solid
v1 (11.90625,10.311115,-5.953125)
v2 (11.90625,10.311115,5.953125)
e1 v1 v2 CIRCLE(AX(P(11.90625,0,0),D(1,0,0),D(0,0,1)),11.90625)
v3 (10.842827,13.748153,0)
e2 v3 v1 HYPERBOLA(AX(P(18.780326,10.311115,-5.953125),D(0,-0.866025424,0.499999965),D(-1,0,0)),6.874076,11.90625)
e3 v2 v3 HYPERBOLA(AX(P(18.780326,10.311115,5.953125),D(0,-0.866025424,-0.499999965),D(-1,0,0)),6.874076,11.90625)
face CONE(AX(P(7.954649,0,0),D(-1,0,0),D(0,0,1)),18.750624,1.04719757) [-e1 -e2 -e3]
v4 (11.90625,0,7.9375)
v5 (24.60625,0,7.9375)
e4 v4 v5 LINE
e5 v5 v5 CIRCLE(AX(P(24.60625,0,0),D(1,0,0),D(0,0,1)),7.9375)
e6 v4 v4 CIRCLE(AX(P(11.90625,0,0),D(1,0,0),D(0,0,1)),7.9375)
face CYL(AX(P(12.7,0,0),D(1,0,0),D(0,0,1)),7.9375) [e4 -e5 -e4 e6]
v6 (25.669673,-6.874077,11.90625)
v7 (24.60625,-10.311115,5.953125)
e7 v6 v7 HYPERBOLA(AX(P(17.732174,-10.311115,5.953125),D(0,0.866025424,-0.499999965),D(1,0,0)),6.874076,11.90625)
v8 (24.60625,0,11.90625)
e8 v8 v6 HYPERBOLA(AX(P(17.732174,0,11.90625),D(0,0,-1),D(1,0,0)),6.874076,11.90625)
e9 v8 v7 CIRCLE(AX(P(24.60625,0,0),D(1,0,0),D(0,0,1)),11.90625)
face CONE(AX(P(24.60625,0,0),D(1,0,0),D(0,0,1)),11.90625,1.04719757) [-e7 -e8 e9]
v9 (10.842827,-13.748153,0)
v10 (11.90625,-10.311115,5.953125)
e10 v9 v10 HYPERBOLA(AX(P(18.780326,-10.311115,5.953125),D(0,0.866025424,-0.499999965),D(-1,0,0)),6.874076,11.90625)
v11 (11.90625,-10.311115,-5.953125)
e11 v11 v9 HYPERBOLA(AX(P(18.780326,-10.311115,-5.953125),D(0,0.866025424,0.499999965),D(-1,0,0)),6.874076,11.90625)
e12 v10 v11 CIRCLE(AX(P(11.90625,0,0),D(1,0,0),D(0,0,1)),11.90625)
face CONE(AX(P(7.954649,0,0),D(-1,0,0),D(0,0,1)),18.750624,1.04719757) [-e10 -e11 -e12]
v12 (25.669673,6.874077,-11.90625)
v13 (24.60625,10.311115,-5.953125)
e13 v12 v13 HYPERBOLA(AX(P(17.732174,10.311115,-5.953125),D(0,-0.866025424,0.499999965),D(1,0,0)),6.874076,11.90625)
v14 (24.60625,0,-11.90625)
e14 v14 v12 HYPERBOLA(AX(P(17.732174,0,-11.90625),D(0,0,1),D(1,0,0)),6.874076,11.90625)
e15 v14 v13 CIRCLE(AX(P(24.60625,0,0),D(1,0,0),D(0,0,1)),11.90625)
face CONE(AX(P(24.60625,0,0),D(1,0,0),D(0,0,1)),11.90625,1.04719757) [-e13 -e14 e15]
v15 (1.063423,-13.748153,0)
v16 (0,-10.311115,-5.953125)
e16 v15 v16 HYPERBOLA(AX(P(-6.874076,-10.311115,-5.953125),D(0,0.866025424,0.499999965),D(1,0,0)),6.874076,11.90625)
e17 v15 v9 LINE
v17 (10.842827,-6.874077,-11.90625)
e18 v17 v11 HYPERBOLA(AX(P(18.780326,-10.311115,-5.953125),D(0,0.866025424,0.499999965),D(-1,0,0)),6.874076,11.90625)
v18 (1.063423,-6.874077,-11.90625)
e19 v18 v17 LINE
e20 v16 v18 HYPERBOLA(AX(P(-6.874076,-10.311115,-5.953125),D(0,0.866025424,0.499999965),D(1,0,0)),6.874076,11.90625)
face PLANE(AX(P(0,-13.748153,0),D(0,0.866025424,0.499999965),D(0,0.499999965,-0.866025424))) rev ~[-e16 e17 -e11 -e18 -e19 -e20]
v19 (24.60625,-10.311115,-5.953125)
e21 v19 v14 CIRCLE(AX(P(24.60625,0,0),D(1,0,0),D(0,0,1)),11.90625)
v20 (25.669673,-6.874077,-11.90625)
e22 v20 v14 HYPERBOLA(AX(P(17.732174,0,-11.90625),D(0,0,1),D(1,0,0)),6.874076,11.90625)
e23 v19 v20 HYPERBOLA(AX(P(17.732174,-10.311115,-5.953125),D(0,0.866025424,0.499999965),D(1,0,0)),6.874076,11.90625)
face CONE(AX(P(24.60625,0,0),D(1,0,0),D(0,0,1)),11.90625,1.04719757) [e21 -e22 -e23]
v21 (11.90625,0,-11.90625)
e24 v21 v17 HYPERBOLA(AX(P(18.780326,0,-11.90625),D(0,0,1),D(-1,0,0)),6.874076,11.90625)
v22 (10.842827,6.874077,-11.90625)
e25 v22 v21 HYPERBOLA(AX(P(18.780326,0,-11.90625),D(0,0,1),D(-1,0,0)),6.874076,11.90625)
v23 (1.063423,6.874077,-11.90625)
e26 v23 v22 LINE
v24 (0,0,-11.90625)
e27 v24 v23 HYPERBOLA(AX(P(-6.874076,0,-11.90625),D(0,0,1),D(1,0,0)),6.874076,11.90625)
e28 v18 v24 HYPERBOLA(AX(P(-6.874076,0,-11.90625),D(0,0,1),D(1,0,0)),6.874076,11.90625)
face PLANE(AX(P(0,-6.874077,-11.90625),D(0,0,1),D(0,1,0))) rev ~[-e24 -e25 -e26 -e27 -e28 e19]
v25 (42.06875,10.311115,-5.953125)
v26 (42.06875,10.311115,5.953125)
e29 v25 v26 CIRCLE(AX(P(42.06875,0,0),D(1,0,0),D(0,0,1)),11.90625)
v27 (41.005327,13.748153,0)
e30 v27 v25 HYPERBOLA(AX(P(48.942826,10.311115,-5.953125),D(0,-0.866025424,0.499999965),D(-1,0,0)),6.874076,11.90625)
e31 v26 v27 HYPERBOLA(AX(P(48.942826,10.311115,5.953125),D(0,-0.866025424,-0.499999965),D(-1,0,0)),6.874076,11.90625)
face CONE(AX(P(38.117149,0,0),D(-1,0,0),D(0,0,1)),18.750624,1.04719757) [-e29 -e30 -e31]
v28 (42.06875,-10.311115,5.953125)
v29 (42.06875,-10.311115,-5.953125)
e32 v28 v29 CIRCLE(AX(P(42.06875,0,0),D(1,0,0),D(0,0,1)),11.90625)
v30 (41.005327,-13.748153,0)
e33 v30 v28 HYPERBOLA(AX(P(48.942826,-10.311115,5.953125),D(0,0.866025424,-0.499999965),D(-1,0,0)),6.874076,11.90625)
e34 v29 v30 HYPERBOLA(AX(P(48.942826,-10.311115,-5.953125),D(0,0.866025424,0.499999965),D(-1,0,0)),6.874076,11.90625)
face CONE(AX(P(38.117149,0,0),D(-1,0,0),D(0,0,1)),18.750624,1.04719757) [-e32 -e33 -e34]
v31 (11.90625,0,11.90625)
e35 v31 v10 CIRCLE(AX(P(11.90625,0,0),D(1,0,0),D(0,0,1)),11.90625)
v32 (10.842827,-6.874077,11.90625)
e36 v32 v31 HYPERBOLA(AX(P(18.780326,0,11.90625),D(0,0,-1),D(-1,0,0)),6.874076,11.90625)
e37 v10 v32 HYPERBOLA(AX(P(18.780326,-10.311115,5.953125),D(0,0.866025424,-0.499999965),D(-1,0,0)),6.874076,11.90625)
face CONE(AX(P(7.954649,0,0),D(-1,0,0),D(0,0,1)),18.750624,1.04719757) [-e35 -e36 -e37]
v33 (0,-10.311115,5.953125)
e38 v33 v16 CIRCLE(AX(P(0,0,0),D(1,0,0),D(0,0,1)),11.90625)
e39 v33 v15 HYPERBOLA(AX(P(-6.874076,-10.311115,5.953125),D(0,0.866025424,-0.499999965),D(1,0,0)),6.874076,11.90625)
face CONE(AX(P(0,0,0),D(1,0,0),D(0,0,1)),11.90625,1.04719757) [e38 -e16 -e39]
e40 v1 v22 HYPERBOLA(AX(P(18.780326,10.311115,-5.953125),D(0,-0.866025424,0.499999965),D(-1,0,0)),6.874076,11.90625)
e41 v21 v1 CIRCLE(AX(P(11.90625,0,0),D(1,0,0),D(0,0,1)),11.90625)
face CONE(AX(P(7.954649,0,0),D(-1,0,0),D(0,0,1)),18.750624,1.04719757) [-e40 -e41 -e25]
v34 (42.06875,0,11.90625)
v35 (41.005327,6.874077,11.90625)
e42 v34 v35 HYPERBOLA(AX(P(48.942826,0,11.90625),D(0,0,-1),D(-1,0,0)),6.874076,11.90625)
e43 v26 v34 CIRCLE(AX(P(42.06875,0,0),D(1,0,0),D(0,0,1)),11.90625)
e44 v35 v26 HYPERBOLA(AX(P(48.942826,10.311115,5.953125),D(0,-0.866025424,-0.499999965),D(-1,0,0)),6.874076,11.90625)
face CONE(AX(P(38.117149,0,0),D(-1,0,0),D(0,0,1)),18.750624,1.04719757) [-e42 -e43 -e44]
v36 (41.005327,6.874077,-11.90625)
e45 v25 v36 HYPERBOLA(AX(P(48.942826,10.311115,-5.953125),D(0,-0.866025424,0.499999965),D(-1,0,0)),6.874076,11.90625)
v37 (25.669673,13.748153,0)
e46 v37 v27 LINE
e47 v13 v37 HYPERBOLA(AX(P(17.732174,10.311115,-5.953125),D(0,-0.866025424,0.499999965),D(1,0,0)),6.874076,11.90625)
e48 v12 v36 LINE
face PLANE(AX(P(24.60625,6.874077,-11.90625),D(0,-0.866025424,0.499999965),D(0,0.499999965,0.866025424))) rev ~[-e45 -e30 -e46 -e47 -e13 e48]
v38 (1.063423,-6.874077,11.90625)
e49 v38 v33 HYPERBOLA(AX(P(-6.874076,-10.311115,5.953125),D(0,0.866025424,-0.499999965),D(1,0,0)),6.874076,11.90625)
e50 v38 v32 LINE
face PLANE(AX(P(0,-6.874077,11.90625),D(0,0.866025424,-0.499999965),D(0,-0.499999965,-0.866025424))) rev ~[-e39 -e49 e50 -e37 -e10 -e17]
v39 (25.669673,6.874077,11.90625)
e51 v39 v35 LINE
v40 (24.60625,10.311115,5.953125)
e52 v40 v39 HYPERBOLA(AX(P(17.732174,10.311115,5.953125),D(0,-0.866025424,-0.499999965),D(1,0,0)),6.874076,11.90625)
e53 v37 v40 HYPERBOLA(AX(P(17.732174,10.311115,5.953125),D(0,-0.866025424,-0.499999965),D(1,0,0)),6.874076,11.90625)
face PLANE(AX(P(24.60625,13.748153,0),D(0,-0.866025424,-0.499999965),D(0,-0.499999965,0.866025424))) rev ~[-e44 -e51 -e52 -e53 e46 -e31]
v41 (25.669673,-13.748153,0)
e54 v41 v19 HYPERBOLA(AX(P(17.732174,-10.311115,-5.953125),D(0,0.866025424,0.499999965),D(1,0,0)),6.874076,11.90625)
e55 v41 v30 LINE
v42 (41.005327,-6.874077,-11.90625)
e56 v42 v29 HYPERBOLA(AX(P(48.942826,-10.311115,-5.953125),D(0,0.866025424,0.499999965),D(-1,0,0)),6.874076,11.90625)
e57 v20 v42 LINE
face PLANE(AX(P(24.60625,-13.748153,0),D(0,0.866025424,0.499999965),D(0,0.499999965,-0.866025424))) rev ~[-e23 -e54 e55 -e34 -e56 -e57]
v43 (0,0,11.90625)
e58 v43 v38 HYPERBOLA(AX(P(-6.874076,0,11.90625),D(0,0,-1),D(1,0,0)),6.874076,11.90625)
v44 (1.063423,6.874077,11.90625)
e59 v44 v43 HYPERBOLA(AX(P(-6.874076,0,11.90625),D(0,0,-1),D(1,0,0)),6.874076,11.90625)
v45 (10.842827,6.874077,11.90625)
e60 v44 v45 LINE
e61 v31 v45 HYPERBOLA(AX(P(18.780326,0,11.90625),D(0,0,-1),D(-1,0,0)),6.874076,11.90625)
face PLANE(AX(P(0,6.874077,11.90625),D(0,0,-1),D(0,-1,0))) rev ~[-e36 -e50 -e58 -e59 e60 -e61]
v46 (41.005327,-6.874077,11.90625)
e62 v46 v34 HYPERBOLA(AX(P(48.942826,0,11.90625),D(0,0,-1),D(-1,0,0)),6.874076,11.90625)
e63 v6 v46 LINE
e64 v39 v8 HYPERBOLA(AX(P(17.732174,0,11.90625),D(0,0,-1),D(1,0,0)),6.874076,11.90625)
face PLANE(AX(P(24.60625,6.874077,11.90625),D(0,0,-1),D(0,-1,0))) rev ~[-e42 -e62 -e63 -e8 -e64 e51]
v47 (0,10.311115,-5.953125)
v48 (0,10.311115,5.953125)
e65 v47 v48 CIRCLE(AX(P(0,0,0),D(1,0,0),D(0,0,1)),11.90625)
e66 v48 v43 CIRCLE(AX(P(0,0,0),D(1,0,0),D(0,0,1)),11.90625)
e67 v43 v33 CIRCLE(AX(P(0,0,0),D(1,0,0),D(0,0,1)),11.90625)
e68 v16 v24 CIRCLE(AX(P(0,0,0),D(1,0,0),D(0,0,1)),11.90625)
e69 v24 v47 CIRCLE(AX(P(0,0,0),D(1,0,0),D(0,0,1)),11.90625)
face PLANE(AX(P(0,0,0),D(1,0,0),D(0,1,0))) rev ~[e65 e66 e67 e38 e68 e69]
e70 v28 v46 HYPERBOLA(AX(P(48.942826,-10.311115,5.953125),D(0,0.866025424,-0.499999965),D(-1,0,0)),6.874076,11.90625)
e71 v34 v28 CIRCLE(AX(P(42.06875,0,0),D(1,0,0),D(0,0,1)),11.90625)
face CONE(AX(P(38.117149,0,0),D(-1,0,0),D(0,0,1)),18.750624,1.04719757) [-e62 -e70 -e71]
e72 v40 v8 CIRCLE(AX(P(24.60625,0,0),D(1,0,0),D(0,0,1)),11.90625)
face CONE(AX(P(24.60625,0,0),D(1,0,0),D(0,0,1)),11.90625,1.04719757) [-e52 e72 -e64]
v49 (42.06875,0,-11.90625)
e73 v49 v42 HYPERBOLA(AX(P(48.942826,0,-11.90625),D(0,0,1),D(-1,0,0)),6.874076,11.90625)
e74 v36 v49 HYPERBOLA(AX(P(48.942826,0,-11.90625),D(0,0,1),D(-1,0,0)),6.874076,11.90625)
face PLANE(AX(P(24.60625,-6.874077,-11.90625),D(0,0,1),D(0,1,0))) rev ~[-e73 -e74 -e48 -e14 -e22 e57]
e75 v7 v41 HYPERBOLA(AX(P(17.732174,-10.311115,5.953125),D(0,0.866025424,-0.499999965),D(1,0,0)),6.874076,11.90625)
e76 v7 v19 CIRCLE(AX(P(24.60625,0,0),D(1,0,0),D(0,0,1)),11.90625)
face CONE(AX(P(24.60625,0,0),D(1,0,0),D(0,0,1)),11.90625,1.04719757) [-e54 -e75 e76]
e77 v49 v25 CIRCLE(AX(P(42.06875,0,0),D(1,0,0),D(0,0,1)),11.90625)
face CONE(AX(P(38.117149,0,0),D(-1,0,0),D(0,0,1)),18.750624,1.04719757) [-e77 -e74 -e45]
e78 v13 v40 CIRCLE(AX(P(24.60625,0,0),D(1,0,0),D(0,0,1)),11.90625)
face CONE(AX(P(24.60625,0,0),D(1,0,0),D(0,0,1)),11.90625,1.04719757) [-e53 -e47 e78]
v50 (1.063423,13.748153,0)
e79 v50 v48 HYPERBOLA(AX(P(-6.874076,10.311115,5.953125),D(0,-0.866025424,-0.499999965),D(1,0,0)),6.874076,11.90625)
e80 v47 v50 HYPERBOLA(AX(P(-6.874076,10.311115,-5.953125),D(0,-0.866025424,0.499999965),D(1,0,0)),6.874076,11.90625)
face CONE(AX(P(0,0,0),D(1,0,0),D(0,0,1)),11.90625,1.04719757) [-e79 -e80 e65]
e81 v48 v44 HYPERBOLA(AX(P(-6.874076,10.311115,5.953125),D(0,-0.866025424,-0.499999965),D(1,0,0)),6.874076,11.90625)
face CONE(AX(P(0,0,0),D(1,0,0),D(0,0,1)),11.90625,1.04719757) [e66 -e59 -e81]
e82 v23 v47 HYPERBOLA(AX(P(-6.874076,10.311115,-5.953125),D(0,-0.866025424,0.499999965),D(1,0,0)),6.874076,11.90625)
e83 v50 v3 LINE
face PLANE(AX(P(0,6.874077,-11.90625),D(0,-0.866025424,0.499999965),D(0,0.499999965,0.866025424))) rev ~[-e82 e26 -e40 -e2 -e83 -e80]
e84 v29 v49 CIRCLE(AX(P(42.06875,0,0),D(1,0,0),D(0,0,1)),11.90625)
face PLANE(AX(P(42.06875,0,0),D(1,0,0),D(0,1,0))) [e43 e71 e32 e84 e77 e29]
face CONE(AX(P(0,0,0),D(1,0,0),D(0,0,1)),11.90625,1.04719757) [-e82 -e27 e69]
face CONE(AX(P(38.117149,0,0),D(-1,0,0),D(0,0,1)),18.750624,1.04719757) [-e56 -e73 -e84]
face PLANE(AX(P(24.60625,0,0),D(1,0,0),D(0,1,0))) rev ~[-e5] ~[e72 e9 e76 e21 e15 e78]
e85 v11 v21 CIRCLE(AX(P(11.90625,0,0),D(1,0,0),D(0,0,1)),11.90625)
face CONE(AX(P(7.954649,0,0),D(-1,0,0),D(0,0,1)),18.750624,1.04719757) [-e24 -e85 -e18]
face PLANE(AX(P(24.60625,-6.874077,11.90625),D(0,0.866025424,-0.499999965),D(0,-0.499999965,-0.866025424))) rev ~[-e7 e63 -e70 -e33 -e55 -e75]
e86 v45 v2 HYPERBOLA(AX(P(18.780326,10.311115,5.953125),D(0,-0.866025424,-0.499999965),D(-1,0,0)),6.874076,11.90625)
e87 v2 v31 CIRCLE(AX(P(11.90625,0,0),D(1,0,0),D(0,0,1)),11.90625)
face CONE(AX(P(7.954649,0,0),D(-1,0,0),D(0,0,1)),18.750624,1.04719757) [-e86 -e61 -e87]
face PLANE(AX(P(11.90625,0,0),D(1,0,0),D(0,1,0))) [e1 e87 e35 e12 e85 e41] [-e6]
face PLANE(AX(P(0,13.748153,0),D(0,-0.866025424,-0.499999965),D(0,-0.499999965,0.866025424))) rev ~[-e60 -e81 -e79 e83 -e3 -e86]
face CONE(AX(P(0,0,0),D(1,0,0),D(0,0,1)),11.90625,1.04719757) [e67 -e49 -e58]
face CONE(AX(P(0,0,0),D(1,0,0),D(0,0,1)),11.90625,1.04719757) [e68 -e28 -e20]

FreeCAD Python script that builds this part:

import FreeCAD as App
import Part
import Sketcher
from FreeCAD import Vector
Q = App.Units.Quantity


def add_polygon(sketch, points):
    """Adds a closed chain of lines whose ends are joined by coincident constraints."""
    first, n = sketch.GeometryCount, len(points)
    for a, b in zip(points, points[1:] + points[:1]):
        sketch.addGeometry(Part.LineSegment(App.Vector(*a, 0), App.Vector(*b, 0)), False)
    for i in range(n):
        sketch.addConstraint(Sketcher.Constraint("Coincident", first + i, 2, first + (i + 1) % n, 1))

doc = App.newDocument("Part")
body = doc.addObject("PartDesign::Body", "Body")

sketch1 = body.newObject("Sketcher::SketchObject", "Sketch")
sketch1.AttachmentSupport = (doc.getObject("XZ_Plane"), [""])
sketch1.MapMode = "FlatFace"
add_polygon(sketch1, [(0, 8), (0, 0), (25, 0), (25, 8)])
sketch1.addConstraint([
    Sketcher.Constraint("Vertical", 0),
    Sketcher.Constraint("Horizontal", 1),
    Sketcher.Constraint("Vertical", 2),
    Sketcher.Constraint("Horizontal", 3),
    Sketcher.Constraint("Coincident", 0, 2, -1, 1),
    Sketcher.Constraint("DistanceX", 1, 1, 1, 2, Q("1 in")),
    Sketcher.Constraint("DistanceY", 0, 2, 0, 1, Q("0.3125 in")),
])
revolution = body.newObject("PartDesign::Revolution", "Revolution")
revolution.Profile = sketch1
revolution.ReferenceAxis = (sketch1, ["H_Axis"])
revolution.Angle = 360

sketch2 = body.newObject("Sketcher::SketchObject", "Sketch001")
sketch2.AttachmentSupport = (doc.getObject("YZ_Plane"), [""])
sketch2.MapMode = "FlatFace"
add_polygon(sketch2, [(7, 12), (-7, 12), (-14, 0), (-7, -12), (7, -12), (14, 0)])
sketch2.addConstraint([
    Sketcher.Constraint("Horizontal", 0),
    Sketcher.Constraint("Horizontal", 3),
    Sketcher.Constraint("Symmetric", 0, 2, 3, 2, -1, 1),
    Sketcher.Constraint("Symmetric", 1, 2, 4, 2, -1, 1),
    Sketcher.Constraint("PointOnObject", 1, 2, -1),
    Sketcher.Constraint("Parallel", 2, 5),
    Sketcher.Constraint("Vertical", 0, 2, 2, 2),
    Sketcher.Constraint("Angle", 1, Q("-119.999998 deg")),
    Sketcher.Constraint("DistanceY", -1, 1, 0, 2, Q("0.46875 in")),
    Sketcher.Constraint("DistanceX", 0, 2, 0, 1, 13.748154),
])
pad1 = body.newObject("PartDesign::Pad", "Pad")
pad1.Profile = sketch2
pad1.Length = Q("0.46875 in")

sketch3 = body.newObject("Sketcher::SketchObject", "Sketch002")
sketch3.AttachmentSupport = (doc.getObject("YZ_Plane"), [""])
sketch3.MapMode = "FlatFace"
sketch3.AttachmentOffset = App.Placement(Vector(0, 0, 0.96875 * 25.4), App.Rotation())
add_polygon(sketch3, [(7, -12), (14, 0), (7, 12), (-7, 12), (-14, 0), (-7, -12)])
sketch3.addConstraint([
    Sketcher.Constraint("Horizontal", 2),
    Sketcher.Constraint("Horizontal", 5),
    Sketcher.Constraint("Symmetric", 0, 2, 3, 2, -1, 1),
    Sketcher.Constraint("Symmetric", 1, 2, 4, 2, -1, 1),
    Sketcher.Constraint("PointOnObject", 0, 2, -1),
    Sketcher.Constraint("Parallel", 0, 3),
    Sketcher.Constraint("Vertical", 2, 2, 4, 2),
    Sketcher.Constraint("Angle", 0, Q("60.000002 deg")),
    Sketcher.Constraint("DistanceY", -1, 1, 1, 2, Q("0.46875 in")),
    Sketcher.Constraint("DistanceX", 2, 2, 2, 1, 13.748154),
])
pad2 = body.newObject("PartDesign::Pad", "Pad001")
pad2.Profile = sketch3
pad2.Length = Q("0.6875 in")

sketch4 = body.newObject("Sketcher::SketchObject", "Sketch003")
sketch4.AttachmentSupport = (doc.getObject("XZ_Plane"), [""])
sketch4.MapMode = "FlatFace"
add_polygon(sketch4, [(0, 18.8), (0, 11.9), (4, 18.8)])
add_polygon(sketch4, [(8, 18.8), (11.9, 11.9), (11.9, 18.8)])
add_polygon(sketch4, [(24.6, 18.8), (24.6, 11.9), (28.6, 18.8)])
add_polygon(sketch4, [(42.1, 11.9), (42.1, 18.8), (38.1, 18.8)])
sketch4.addConstraint([
    Sketcher.Constraint("Vertical", 0),
    Sketcher.Constraint("Horizontal", 2),
    Sketcher.Constraint("Vertical", 4),
    Sketcher.Constraint("Horizontal", 5),
    Sketcher.Constraint("Vertical", 6),
    Sketcher.Constraint("Horizontal", 8),
    Sketcher.Constraint("Vertical", 9),
    Sketcher.Constraint("Horizontal", 10),
    Sketcher.Constraint("PointOnObject", 0, 2, -2),
    Sketcher.Constraint("Parallel", 1, 7),
    Sketcher.Constraint("Parallel", 3, 11),
    Sketcher.Constraint("Horizontal", 0, 2, 3, 2),
    Sketcher.Constraint("Horizontal", 2, 2, 4, 2),
    Sketcher.Constraint("Horizontal", 3, 2, 6, 2),
    Sketcher.Constraint("Horizontal", 5, 2, 7, 2),
    Sketcher.Constraint("Horizontal", 8, 2, 9, 2),
    Sketcher.Constraint("Horizontal", 6, 2, 11, 2),
    Sketcher.Constraint("Equal", 2, 5),
    Sketcher.Constraint("Angle", 1, Q("60.000001 deg")),
    Sketcher.Constraint("DistanceX", 3, 2, 6, 2, Q("0.5 in")),
    Sketcher.Constraint("DistanceY", -1, 1, 0, 2, Q("0.46875 in")),
    Sketcher.Constraint("DistanceX", -1, 1, 3, 2, Q("0.46875 in")),
    Sketcher.Constraint("DistanceX", -1, 1, 9, 2, Q("1.65625 in")),
    Sketcher.Constraint("DistanceX", 2, 2, 2, 1, 3.951601),
])
groove = body.newObject("PartDesign::Groove", "Groove")
groove.Profile = sketch4
groove.ReferenceAxis = (sketch4, ["H_Axis"])
groove.Angle = 360

doc.recompute()
